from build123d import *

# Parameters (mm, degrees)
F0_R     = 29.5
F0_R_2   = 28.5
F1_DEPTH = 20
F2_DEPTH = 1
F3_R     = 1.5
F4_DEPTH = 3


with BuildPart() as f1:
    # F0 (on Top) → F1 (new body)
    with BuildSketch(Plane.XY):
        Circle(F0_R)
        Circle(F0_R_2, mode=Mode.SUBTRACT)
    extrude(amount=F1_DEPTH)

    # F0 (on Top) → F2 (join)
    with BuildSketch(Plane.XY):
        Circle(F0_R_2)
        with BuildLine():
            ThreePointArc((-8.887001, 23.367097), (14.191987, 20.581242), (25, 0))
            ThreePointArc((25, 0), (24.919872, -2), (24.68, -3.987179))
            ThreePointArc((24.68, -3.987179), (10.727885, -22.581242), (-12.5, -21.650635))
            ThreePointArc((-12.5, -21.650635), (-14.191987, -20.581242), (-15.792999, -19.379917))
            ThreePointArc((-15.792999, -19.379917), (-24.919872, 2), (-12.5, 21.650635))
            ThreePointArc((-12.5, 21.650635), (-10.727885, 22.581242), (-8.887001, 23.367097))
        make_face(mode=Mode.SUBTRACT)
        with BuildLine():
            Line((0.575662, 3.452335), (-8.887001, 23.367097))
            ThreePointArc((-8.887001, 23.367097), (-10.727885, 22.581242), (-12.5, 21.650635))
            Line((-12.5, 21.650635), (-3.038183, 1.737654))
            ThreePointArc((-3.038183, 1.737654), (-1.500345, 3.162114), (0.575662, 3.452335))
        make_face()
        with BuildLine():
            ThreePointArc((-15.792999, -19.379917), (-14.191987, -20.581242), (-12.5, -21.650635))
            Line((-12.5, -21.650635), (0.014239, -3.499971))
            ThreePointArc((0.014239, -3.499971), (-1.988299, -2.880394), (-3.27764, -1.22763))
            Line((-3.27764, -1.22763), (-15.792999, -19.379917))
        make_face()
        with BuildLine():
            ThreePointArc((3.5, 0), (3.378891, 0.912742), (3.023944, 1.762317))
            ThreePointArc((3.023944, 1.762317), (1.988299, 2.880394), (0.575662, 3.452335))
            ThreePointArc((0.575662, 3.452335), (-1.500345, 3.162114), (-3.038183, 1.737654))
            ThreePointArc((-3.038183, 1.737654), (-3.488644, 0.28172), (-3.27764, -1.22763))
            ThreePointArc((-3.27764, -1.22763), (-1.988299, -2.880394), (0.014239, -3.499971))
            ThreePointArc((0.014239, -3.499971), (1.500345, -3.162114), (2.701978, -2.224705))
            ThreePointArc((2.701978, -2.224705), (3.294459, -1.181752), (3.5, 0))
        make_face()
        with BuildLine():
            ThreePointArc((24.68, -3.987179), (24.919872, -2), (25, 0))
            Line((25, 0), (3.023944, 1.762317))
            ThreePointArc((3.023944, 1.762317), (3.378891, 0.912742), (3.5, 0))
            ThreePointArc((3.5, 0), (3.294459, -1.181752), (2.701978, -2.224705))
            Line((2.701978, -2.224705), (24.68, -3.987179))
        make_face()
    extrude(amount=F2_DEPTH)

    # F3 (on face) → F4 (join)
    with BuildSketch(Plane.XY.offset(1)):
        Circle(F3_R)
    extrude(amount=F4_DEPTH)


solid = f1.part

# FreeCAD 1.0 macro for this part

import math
import FreeCAD as App
import Part
import Sketcher
Q = App.Units.Quantity

doc = App.newDocument("Part")
body = doc.addObject("PartDesign::Body", "Body")

sketch1 = body.newObject("Sketcher::SketchObject", "Sketch")
sketch1.AttachmentSupport = (doc.getObject("XY_Plane"), [""])
sketch1.MapMode = "FlatFace"
sketch1.addGeometry(Part.Circle(App.Vector(0, 0, 0), App.Vector(0, 0, 1), 29.5), False)
sketch1.addGeometry(Part.Circle(App.Vector(0, 0, 0), App.Vector(0, 0, 1), 28.5), False)
sketch1.addConstraint(Sketcher.Constraint("Coincident", 0, 3, -1, 1))
sketch1.addConstraint(Sketcher.Constraint("Coincident", 1, 3, -1, 1))
sketch1.addConstraint(Sketcher.Constraint("Diameter", 0, Q("59 mm")))
sketch1.addConstraint(Sketcher.Constraint("Diameter", 1, Q("57 mm")))
pad1 = body.newObject("PartDesign::Pad", "Pad")
pad1.Profile = sketch1
pad1.Length = 20

sketch2 = body.newObject("Sketcher::SketchObject", "Sketch001")
sketch2.AttachmentSupport = (doc.getObject("XY_Plane"), [""])
sketch2.MapMode = "FlatFace"
sketch2.addGeometry(Part.Circle(App.Vector(0, 0, 0), App.Vector(0, 0, 1), 28.5), False)
sketch2.addGeometry(Part.ArcOfCircle(Part.Circle(App.Vector(-0.000001, 0, 0), App.Vector(0, 0, 1), 24.999999), math.radians(119.999998), math.radians(230.82287)), False)
sketch2.addGeometry(Part.LineSegment(App.Vector(-12.5, 21.650635, 0), App.Vector(-3.038183, 1.737654, 0)), False)
sketch2.addGeometry(Part.ArcOfCircle(Part.Circle(App.Vector(-0.000007, 0, 0), App.Vector(0, 0, 1), 3.499993), math.radians(150.233041), math.radians(200.533328)), False)
sketch2.addGeometry(Part.LineSegment(App.Vector(-3.27764, -1.22763, 0), App.Vector(-15.792999, -19.379917, 0)), False)
sketch2.addGeometry(Part.LineSegment(App.Vector(0.575662, 3.452335, 0), App.Vector(-8.887001, 23.367097, 0)), False)
sketch2.addGeometry(Part.ArcOfCircle(Part.Circle(App.Vector(0, 0.000001, 0), App.Vector(0, 0, 1), 25), math.radians(-0.000001), math.radians(110.822869)), False)
sketch2.addGeometry(Part.LineSegment(App.Vector(25, 0, 0), App.Vector(3.023944, 1.762317, 0)), False)
sketch2.addGeometry(Part.ArcOfCircle(Part.Circle(App.Vector(0, 0.000002, 0), App.Vector(0, 0, 1), 3.499998), math.radians(30.233073), math.radians(80.533274)), False)
sketch2.addGeometry(Part.ArcOfCircle(Part.Circle(App.Vector(0, 0, 0), App.Vector(0, 0, 1), 25), math.radians(-120.000001), math.radians(-9.17713)), False)
sketch2.addGeometry(Part.LineSegment(App.Vector(-12.5, -21.650635, 0), App.Vector(0.014239, -3.499971, 0)), False)
sketch2.addGeometry(Part.ArcOfCircle(Part.Circle(App.Vector(0.000001, -0.000002, 0), App.Vector(0, 0, 1), 3.499998), math.radians(-89.766913), math.radians(-39.46671)), False)
sketch2.addGeometry(Part.LineSegment(App.Vector(2.701978, -2.224705, 0), App.Vector(24.68, -3.987179, 0)), False)
sketch2.addConstraint(Sketcher.Constraint("Coincident", 1, 1, 2, 1))
sketch2.addConstraint(Sketcher.Constraint("Coincident", 2, 2, 3, 1))
sketch2.addConstraint(Sketcher.Constraint("Coincident", 3, 2, 4, 1))
sketch2.addConstraint(Sketcher.Constraint("Coincident", 4, 2, 1, 2))
sketch2.addConstraint(Sketcher.Constraint("Coincident", 5, 2, 6, 2))
sketch2.addConstraint(Sketcher.Constraint("Coincident", 6, 1, 7, 1))
sketch2.addConstraint(Sketcher.Constraint("Coincident", 7, 2, 8, 1))
sketch2.addConstraint(Sketcher.Constraint("Coincident", 8, 2, 5, 1))
sketch2.addConstraint(Sketcher.Constraint("Coincident", 9, 1, 10, 1))
sketch2.addConstraint(Sketcher.Constraint("Coincident", 10, 2, 11, 1))
sketch2.addConstraint(Sketcher.Constraint("Coincident", 11, 2, 12, 1))
sketch2.addConstraint(Sketcher.Constraint("Coincident", 12, 2, 9, 2))
sketch2.addConstraint(Sketcher.Constraint("Coincident", 0, 3, -1, 1))
sketch2.addConstraint(Sketcher.Constraint("Coincident", 1, 3, -1, 1))
sketch2.addConstraint(Sketcher.Constraint("Coincident", 3, 3, -1, 1))
sketch2.addConstraint(Sketcher.Constraint("Coincident", 6, 3, -1, 1))
sketch2.addConstraint(Sketcher.Constraint("Coincident", 8, 3, -1, 1))
sketch2.addConstraint(Sketcher.Constraint("Coincident", 9, 3, -1, 1))
sketch2.addConstraint(Sketcher.Constraint("Coincident", 11, 3, -1, 1))
sketch2.addConstraint(Sketcher.Constraint("Equal", 1, 6))
sketch2.addConstraint(Sketcher.Constraint("Equal", 6, 9))
sketch2.addConstraint(Sketcher.Constraint("Equal", 8, 11))
sketch2.addConstraint(Sketcher.Constraint("PointOnObject", 6, 1, -1))
sketch2.addConstraint(Sketcher.Constraint("Parallel", 2, 5))
sketch2.addConstraint(Sketcher.Constraint("Parallel", 4, 10))
sketch2.addConstraint(Sketcher.Constraint("Parallel", 7, 12))
sketch2.addConstraint(Sketcher.Constraint("Vertical", 1, 1, 9, 1))
sketch2.addConstraint(Sketcher.Constraint("Equal", 4, 5))
sketch2.addConstraint(Sketcher.Constraint("Equal", 2, 7))
sketch2.addConstraint(Sketcher.Constraint("Equal", 7, 10))
sketch2.addConstraint(Sketcher.Constraint("Equal", 5, 12))
sketch2.addConstraint(Sketcher.Constraint("Diameter", 0, Q("57 mm")))
sketch2.addConstraint(Sketcher.Constraint("Radius", 1, Q("24.999999 mm")))
sketch2.addConstraint(Sketcher.Constraint("Radius", 8, Q("3.499998 mm")))
sketch2.addConstraint(Sketcher.Constraint("DistanceX", 1, 1, -1, 1, Q("12.5 mm")))
sketch2.addConstraint(Sketcher.Constraint("DistanceX", -1, 1, 12, 2, Q("24.68 mm")))
sketch2.addConstraint(Sketcher.Constraint("DistanceX", 4, 2, -1, 1, Q("15.792999 mm")))
sketch2.addConstraint(Sketcher.Constraint("DistanceX", 3, 2, -1, 1, Q("3.27764 mm")))
pad2 = body.newObject("PartDesign::Pad", "Pad001")
pad2.Profile = sketch2
pad2.Length = 1

sketch3 = body.newObject("Sketcher::SketchObject", "Sketch002")
sketch3.AttachmentSupport = (doc.getObject("XY_Plane"), [""])
sketch3.MapMode = "FlatFace"
sketch3.AttachmentOffset = App.Placement(App.Vector(0, 0, 1), App.Rotation())
sketch3.addGeometry(Part.Circle(App.Vector(0, 0, 0), App.Vector(0, 0, 1), 1.5), False)
sketch3.addConstraint(Sketcher.Constraint("Coincident", 0, 3, -1, 1))
sketch3.addConstraint(Sketcher.Constraint("Diameter", 0, Q("3 mm")))
pad3 = body.newObject("PartDesign::Pad", "Pad002")
pad3.Profile = sketch3
pad3.Length = 3

doc.recompute()
